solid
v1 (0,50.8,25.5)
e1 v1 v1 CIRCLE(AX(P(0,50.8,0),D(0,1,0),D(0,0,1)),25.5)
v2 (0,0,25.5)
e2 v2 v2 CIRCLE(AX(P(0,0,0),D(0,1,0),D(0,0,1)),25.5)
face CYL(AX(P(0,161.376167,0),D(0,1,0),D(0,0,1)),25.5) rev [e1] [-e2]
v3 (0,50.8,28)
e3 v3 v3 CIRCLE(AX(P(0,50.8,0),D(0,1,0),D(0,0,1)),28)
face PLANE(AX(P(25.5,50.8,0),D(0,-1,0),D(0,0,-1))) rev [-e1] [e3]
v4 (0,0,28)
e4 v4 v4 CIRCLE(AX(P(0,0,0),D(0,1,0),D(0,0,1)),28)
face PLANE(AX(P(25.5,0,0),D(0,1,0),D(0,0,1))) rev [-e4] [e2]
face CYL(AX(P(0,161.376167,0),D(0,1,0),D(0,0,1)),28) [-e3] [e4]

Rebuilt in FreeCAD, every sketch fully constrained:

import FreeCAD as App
import Part
import Sketcher

doc = App.newDocument("Part")
body = doc.addObject("PartDesign::Body", "Body")

# Sketch on XY plane
sketch1 = body.newObject("Sketcher::SketchObject", "Sketch")
sketch1.AttachmentSupport = (doc.getObject("XY_Plane"), [""])
sketch1.MapMode = "FlatFace"
sketch1.addGeometry(Part.LineSegment(App.Vector(25.5, 50.8, 0), App.Vector(25.5, 0, 0)), False)
sketch1.addGeometry(Part.LineSegment(App.Vector(25.5, 0, 0), App.Vector(28, 0, 0)), False)
sketch1.addGeometry(Part.LineSegment(App.Vector(28, 0, 0), App.Vector(28, 50.8, 0)), False)
sketch1.addGeometry(Part.LineSegment(App.Vector(28, 50.8, 0), App.Vector(25.5, 50.8, 0)), False)
sketch1.addConstraint(Sketcher.Constraint("Coincident", 0, 2, 1, 1))
sketch1.addConstraint(Sketcher.Constraint("Coincident", 1, 2, 2, 1))
sketch1.addConstraint(Sketcher.Constraint("Coincident", 2, 2, 3, 1))
sketch1.addConstraint(Sketcher.Constraint("Coincident", 3, 2, 0, 1))
sketch1.addConstraint(Sketcher.Constraint("Vertical", 0))
sketch1.addConstraint(Sketcher.Constraint("Horizontal", 1))
sketch1.addConstraint(Sketcher.Constraint("Vertical", 2))
sketch1.addConstraint(Sketcher.Constraint("Horizontal", 3))
sketch1.addConstraint(Sketcher.Constraint("PointOnObject", 0, 2, -1))
sketch1.addConstraint(Sketcher.Constraint("DistanceX", 1, 1, 1, 2, 2.5))
sketch1.addConstraint(Sketcher.Constraint("DistanceY", 0, 2, 0, 1, 50.8))
sketch1.addConstraint(Sketcher.Constraint("DistanceX", -1, 1, 1, 2, 28.0))
revolution = body.newObject("PartDesign::Revolution", "Revolution")
revolution.Profile = sketch1
revolution.ReferenceAxis = (sketch1, ["V_Axis"])
revolution.Angle = 360

doc.recompute()
